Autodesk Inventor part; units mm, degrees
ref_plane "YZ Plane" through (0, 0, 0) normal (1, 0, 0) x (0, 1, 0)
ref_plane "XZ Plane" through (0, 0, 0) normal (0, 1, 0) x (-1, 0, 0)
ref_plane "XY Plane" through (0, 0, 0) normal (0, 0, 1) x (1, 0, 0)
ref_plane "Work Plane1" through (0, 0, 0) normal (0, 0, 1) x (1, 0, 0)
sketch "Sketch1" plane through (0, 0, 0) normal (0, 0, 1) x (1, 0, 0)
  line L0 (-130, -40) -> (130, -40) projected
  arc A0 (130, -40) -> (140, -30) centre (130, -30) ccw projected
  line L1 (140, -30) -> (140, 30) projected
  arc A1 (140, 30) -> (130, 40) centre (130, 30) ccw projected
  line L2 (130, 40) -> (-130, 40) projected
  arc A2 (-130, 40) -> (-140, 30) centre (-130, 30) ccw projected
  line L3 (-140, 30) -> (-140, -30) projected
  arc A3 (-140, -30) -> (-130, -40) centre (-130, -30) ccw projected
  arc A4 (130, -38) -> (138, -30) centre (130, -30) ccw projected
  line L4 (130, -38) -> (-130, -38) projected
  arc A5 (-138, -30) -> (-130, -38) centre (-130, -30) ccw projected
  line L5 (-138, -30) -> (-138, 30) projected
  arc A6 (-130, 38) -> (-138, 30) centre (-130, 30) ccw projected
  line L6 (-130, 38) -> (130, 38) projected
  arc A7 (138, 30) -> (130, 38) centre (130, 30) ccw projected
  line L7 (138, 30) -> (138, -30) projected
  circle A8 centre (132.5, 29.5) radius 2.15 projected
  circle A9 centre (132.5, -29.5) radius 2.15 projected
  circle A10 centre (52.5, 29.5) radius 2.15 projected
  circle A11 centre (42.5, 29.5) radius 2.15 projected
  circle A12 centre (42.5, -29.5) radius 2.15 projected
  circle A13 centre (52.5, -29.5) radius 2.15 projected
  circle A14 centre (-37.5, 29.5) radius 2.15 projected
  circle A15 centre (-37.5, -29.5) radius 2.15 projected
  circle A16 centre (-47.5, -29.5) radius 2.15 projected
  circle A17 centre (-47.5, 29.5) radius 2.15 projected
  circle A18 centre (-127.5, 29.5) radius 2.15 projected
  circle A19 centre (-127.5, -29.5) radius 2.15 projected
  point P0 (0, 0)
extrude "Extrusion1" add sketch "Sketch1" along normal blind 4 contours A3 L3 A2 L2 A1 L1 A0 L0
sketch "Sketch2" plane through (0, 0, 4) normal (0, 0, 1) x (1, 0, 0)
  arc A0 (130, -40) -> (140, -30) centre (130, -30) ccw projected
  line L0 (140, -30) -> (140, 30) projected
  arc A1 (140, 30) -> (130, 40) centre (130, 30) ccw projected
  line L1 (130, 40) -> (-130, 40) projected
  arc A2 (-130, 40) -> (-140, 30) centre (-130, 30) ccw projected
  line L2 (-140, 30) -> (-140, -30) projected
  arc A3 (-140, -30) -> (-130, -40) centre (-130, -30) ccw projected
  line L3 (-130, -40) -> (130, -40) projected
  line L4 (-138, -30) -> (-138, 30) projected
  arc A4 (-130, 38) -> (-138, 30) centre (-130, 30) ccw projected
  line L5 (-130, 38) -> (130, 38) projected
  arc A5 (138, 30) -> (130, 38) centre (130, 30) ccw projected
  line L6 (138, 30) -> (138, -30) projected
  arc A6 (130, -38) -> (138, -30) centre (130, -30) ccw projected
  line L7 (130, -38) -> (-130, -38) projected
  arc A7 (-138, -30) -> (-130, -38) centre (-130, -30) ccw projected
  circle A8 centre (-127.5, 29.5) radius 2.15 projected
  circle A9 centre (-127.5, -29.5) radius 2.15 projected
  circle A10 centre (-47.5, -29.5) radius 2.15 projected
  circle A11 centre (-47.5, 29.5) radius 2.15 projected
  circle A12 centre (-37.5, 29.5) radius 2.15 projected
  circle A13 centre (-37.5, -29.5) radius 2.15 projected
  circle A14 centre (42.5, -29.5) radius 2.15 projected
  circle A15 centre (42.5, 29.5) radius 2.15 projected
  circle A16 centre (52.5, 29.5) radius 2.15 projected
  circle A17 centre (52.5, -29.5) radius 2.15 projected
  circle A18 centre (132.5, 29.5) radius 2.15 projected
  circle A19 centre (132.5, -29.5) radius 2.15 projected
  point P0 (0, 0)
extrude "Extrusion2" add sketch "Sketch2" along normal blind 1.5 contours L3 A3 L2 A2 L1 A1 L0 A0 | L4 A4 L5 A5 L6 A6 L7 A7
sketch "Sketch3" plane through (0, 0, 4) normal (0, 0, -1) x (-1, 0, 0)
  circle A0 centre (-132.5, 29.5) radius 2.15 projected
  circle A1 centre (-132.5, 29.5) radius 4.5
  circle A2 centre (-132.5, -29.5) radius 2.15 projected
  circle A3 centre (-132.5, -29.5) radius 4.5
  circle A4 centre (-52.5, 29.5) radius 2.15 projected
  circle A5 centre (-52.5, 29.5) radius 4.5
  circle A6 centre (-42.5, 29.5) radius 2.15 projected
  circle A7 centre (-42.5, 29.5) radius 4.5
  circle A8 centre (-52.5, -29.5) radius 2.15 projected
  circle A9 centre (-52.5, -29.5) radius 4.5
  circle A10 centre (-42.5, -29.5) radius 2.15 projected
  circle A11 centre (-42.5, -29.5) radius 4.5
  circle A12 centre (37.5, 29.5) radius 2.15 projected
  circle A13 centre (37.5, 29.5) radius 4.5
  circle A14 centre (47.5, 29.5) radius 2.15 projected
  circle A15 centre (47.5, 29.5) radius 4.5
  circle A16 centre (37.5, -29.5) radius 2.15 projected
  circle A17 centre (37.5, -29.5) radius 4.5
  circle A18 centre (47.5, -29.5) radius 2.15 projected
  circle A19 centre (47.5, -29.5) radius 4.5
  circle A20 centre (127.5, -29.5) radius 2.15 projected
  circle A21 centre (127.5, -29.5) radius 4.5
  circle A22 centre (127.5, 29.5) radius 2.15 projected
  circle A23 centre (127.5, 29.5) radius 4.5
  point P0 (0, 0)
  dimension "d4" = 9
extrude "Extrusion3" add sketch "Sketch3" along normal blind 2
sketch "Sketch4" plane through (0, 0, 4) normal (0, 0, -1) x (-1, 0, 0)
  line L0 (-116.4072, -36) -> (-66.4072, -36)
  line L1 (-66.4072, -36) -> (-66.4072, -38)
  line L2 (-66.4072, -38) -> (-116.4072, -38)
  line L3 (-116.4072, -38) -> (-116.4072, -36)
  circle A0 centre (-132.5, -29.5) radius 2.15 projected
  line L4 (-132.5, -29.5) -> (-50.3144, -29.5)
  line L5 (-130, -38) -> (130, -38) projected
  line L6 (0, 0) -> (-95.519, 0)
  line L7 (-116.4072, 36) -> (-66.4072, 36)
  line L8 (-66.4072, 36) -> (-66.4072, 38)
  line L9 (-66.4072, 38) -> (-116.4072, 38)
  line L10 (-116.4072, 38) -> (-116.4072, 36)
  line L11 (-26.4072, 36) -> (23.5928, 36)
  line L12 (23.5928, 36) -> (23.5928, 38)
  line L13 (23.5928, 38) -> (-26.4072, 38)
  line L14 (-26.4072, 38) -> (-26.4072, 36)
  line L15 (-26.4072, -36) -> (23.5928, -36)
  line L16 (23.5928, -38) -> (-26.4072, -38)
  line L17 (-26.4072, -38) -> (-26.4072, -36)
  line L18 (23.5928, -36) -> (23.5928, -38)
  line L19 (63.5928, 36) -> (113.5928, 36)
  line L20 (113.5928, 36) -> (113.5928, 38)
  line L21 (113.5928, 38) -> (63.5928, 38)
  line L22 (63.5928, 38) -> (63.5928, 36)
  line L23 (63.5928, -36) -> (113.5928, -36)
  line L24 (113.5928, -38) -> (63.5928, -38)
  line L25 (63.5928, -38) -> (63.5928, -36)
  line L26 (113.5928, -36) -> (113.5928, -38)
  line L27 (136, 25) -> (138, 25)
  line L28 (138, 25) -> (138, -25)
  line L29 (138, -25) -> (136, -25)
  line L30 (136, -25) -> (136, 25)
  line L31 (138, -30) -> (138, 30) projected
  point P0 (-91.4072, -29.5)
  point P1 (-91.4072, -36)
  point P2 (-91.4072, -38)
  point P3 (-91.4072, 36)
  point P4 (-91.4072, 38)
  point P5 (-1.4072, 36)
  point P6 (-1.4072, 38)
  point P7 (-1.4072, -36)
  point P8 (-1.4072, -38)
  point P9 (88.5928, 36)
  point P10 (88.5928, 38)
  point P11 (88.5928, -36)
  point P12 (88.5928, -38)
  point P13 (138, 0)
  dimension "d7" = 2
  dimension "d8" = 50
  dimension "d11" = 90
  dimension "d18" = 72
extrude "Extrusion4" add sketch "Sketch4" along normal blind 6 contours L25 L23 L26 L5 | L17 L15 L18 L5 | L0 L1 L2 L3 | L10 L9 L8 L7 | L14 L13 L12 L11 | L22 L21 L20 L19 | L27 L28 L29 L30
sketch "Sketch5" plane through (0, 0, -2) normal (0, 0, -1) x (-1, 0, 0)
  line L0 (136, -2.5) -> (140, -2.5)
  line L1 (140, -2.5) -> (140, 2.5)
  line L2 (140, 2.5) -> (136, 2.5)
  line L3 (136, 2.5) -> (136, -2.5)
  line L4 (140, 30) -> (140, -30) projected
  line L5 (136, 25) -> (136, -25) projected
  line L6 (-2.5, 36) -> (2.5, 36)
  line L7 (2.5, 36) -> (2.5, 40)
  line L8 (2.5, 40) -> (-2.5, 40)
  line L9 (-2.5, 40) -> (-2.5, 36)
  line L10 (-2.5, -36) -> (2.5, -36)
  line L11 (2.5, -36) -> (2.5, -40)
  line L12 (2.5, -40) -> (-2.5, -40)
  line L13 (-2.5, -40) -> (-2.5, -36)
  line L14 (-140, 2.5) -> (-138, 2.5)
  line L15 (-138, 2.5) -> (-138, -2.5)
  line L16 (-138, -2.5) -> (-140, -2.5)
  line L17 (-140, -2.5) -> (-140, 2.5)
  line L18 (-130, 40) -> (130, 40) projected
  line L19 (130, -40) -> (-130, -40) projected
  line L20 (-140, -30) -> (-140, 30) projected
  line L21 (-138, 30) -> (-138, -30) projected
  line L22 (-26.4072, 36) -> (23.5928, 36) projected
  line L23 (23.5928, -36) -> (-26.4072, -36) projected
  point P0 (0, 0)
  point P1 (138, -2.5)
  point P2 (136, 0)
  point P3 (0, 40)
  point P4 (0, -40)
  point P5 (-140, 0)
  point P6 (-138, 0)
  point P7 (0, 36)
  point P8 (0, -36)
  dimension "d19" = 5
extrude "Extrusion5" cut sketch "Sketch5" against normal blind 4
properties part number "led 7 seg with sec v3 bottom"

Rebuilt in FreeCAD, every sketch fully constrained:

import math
import FreeCAD as App
import Part
import Sketcher
from FreeCAD import Vector
Q = App.Units.Quantity

doc = App.newDocument("Part")
body = doc.addObject("PartDesign::Body", "Body")

sketch1 = body.newObject("Sketcher::SketchObject", "Sketch")
sketch1.AttachmentSupport = (doc.getObject("XY_Plane"), [""])
sketch1.MapMode = "FlatFace"
sketch1.addGeometry(Part.ArcOfCircle(Part.Circle(Vector(-130, -30, 0), Vector(0, 0, 1), 10), math.radians(180), math.radians(270)), False)
sketch1.addGeometry(Part.LineSegment(Vector(-130, -40, 0), Vector(130, -40, 0)), False)
sketch1.addGeometry(Part.ArcOfCircle(Part.Circle(Vector(130, -30, 0), Vector(0, 0, 1), 10), math.radians(-90), math.radians(0)), False)
sketch1.addGeometry(Part.LineSegment(Vector(140, -30, 0), Vector(140, 30, 0)), False)
sketch1.addGeometry(Part.ArcOfCircle(Part.Circle(Vector(130, 30, 0), Vector(0, 0, 1), 10), math.radians(0), math.radians(90)), False)
sketch1.addGeometry(Part.LineSegment(Vector(130, 40, 0), Vector(-130, 40, 0)), False)
sketch1.addGeometry(Part.ArcOfCircle(Part.Circle(Vector(-130, 30, 0), Vector(0, 0, 1), 10), math.radians(90), math.radians(180)), False)
sketch1.addGeometry(Part.LineSegment(Vector(-140, 30, 0), Vector(-140, -30, 0)), False)
sketch1.addGeometry(Part.ArcOfCircle(Part.Circle(Vector(130, -30, 0), Vector(0, 0, 1), 8), math.radians(-90), math.radians(0)), False)
sketch1.addGeometry(Part.LineSegment(Vector(130, -38, 0), Vector(-130, -38, 0)), False)
sketch1.addGeometry(Part.ArcOfCircle(Part.Circle(Vector(-130, -30, 0), Vector(0, 0, 1), 8), math.radians(180), math.radians(270)), False)
sketch1.addGeometry(Part.LineSegment(Vector(-138, -30, 0), Vector(-138, 30, 0)), False)
sketch1.addGeometry(Part.ArcOfCircle(Part.Circle(Vector(-130, 30, 0), Vector(0, 0, 1), 8), math.radians(90), math.radians(180)), False)
sketch1.addGeometry(Part.LineSegment(Vector(-130, 38, 0), Vector(130, 38, 0)), False)
sketch1.addGeometry(Part.ArcOfCircle(Part.Circle(Vector(130, 30, 0), Vector(0, 0, 1), 8), math.radians(0), math.radians(90)), False)
sketch1.addGeometry(Part.LineSegment(Vector(138, 30, 0), Vector(138, -30, 0)), False)
sketch1.addConstraint(Sketcher.Constraint("Tangent", 0, 2, 1, 1))
sketch1.addConstraint(Sketcher.Constraint("Tangent", 1, 2, 2, 1))
sketch1.addConstraint(Sketcher.Constraint("Tangent", 2, 2, 3, 1))
sketch1.addConstraint(Sketcher.Constraint("Tangent", 3, 2, 4, 1))
sketch1.addConstraint(Sketcher.Constraint("Tangent", 4, 2, 5, 1))
sketch1.addConstraint(Sketcher.Constraint("Tangent", 5, 2, 6, 1))
sketch1.addConstraint(Sketcher.Constraint("Tangent", 6, 2, 7, 1))
sketch1.addConstraint(Sketcher.Constraint("Tangent", 7, 2, 0, 1))
sketch1.addConstraint(Sketcher.Constraint("Tangent", 8, 1, 9, 1))
sketch1.addConstraint(Sketcher.Constraint("Tangent", 9, 2, 10, 2))
sketch1.addConstraint(Sketcher.Constraint("Tangent", 10, 1, 11, 1))
sketch1.addConstraint(Sketcher.Constraint("Tangent", 11, 2, 12, 2))
sketch1.addConstraint(Sketcher.Constraint("Tangent", 12, 1, 13, 1))
sketch1.addConstraint(Sketcher.Constraint("Tangent", 13, 2, 14, 2))
sketch1.addConstraint(Sketcher.Constraint("Tangent", 14, 1, 15, 1))
sketch1.addConstraint(Sketcher.Constraint("Tangent", 15, 2, 8, 2))
sketch1.addConstraint(Sketcher.Constraint("Horizontal", 1))
sketch1.addConstraint(Sketcher.Constraint("Vertical", 3))
sketch1.addConstraint(Sketcher.Constraint("Horizontal", 5))
sketch1.addConstraint(Sketcher.Constraint("Vertical", 7))
sketch1.addConstraint(Sketcher.Constraint("Horizontal", 9))
sketch1.addConstraint(Sketcher.Constraint("Vertical", 11))
sketch1.addConstraint(Sketcher.Constraint("Horizontal", 13))
sketch1.addConstraint(Sketcher.Constraint("Vertical", 15))
sketch1.addConstraint(Sketcher.Constraint("Coincident", 8, 3, 2, 3))
sketch1.addConstraint(Sketcher.Constraint("Coincident", 10, 3, 0, 3))
sketch1.addConstraint(Sketcher.Constraint("Coincident", 12, 3, 6, 3))
sketch1.addConstraint(Sketcher.Constraint("Equal", 0, 2))
sketch1.addConstraint(Sketcher.Constraint("Equal", 2, 4))
sketch1.addConstraint(Sketcher.Constraint("Equal", 4, 6))
sketch1.addConstraint(Sketcher.Constraint("Equal", 12, 14))
sketch1.addConstraint(Sketcher.Constraint("Symmetric", 0, 3, 4, 3, -1, 1))
sketch1.addConstraint(Sketcher.Constraint("Radius", 0, Q("10 mm")))
sketch1.addConstraint(Sketcher.Constraint("Radius", 8, Q("8 mm")))
sketch1.addConstraint(Sketcher.Constraint("DistanceX", 1, 1, 1, 2, Q("260 mm")))
sketch1.addConstraint(Sketcher.Constraint("DistanceY", 3, 1, 3, 2, Q("60 mm")))
pad1 = body.newObject("PartDesign::Pad", "Pad")
pad1.Profile = sketch1
pad1.Length = 4

sketch2 = body.newObject("Sketcher::SketchObject", "Sketch001")
sketch2.AttachmentSupport = (doc.getObject("XY_Plane"), [""])
sketch2.MapMode = "FlatFace"
sketch2.AttachmentOffset = App.Placement(Vector(0, 0, 4), App.Rotation())
sketch2.addGeometry(Part.LineSegment(Vector(-130, -40, 0), Vector(130, -40, 0)), False)
sketch2.addGeometry(Part.ArcOfCircle(Part.Circle(Vector(130, -30, 0), Vector(0, 0, 1), 10), math.radians(-90), math.radians(0)), False)
sketch2.addGeometry(Part.LineSegment(Vector(140, -30, 0), Vector(140, 30, 0)), False)
sketch2.addGeometry(Part.ArcOfCircle(Part.Circle(Vector(130, 30, 0), Vector(0, 0, 1), 10), math.radians(0), math.radians(90)), False)
sketch2.addGeometry(Part.LineSegment(Vector(130, 40, 0), Vector(-130, 40, 0)), False)
sketch2.addGeometry(Part.ArcOfCircle(Part.Circle(Vector(-130, 30, 0), Vector(0, 0, 1), 10), math.radians(90), math.radians(180)), False)
sketch2.addGeometry(Part.LineSegment(Vector(-140, 30, 0), Vector(-140, -30, 0)), False)
sketch2.addGeometry(Part.ArcOfCircle(Part.Circle(Vector(-130, -30, 0), Vector(0, 0, 1), 10), math.radians(180), math.radians(270)), False)
sketch2.addGeometry(Part.Circle(Vector(52.5, -29.5, 0), Vector(0, 0, 1), 2.1), False)
sketch2.addGeometry(Part.Circle(Vector(132.5, -29.5, 0), Vector(0, 0, 1), 2.1), False)
sketch2.addGeometry(Part.Circle(Vector(-127.5, 29.5, 0), Vector(0, 0, 1), 2.1), False)
sketch2.addGeometry(Part.Circle(Vector(-47.5, 29.5, 0), Vector(0, 0, 1), 2.1), False)
sketch2.addGeometry(Part.Circle(Vector(-37.5, 29.5, 0), Vector(0, 0, 1), 2.1), False)
sketch2.addGeometry(Part.Circle(Vector(42.5, 29.5, 0), Vector(0, 0, 1), 2.1), False)
sketch2.addGeometry(Part.Circle(Vector(52.5, 29.5, 0), Vector(0, 0, 1), 2.1), False)
sketch2.addGeometry(Part.Circle(Vector(132.5, 29.5, 0), Vector(0, 0, 1), 2.1), False)
sketch2.addGeometry(Part.Circle(Vector(-127.5, -29.5, 0), Vector(0, 0, 1), 2.1), False)
sketch2.addGeometry(Part.Circle(Vector(-47.5, -29.5, 0), Vector(0, 0, 1), 2.1), False)
sketch2.addGeometry(Part.Circle(Vector(-37.5, -29.5, 0), Vector(0, 0, 1), 2.1), False)
sketch2.addGeometry(Part.Circle(Vector(42.5, -29.5, 0), Vector(0, 0, 1), 2.1), False)
sketch2.addConstraint(Sketcher.Constraint("Tangent", 0, 2, 1, 1))
sketch2.addConstraint(Sketcher.Constraint("Tangent", 1, 2, 2, 1))
sketch2.addConstraint(Sketcher.Constraint("Tangent", 2, 2, 3, 1))
sketch2.addConstraint(Sketcher.Constraint("Tangent", 3, 2, 4, 1))
sketch2.addConstraint(Sketcher.Constraint("Tangent", 4, 2, 5, 1))
sketch2.addConstraint(Sketcher.Constraint("Tangent", 5, 2, 6, 1))
sketch2.addConstraint(Sketcher.Constraint("Tangent", 6, 2, 7, 1))
sketch2.addConstraint(Sketcher.Constraint("Tangent", 7, 2, 0, 1))
sketch2.addConstraint(Sketcher.Constraint("Horizontal", 0))
sketch2.addConstraint(Sketcher.Constraint("Vertical", 2))
sketch2.addConstraint(Sketcher.Constraint("Horizontal", 4))
sketch2.addConstraint(Sketcher.Constraint("Vertical", 6))
sketch2.addConstraint(Sketcher.Constraint("Equal", 1, 3))
sketch2.addConstraint(Sketcher.Constraint("Equal", 3, 5))
sketch2.addConstraint(Sketcher.Constraint("Equal", 5, 7))
sketch2.addConstraint(Sketcher.Constraint("Equal", 8, 9))
sketch2.addConstraint(Sketcher.Constraint("Equal", 9, 10))
sketch2.addConstraint(Sketcher.Constraint("Equal", 10, 11))
sketch2.addConstraint(Sketcher.Constraint("Equal", 11, 12))
sketch2.addConstraint(Sketcher.Constraint("Equal", 12, 13))
sketch2.addConstraint(Sketcher.Constraint("Equal", 13, 14))
sketch2.addConstraint(Sketcher.Constraint("Equal", 14, 15))
sketch2.addConstraint(Sketcher.Constraint("Equal", 15, 16))
sketch2.addConstraint(Sketcher.Constraint("Equal", 16, 17))
sketch2.addConstraint(Sketcher.Constraint("Equal", 17, 18))
sketch2.addConstraint(Sketcher.Constraint("Equal", 18, 19))
sketch2.addConstraint(Sketcher.Constraint("Symmetric", 1, 3, 5, 3, -1, 1))
sketch2.addConstraint(Sketcher.Constraint("Symmetric", 8, 3, 14, 3, -1))
sketch2.addConstraint(Sketcher.Constraint("Symmetric", 9, 3, 15, 3, -1))
sketch2.addConstraint(Sketcher.Constraint("Symmetric", 10, 3, 16, 3, -1))
sketch2.addConstraint(Sketcher.Constraint("Symmetric", 11, 3, 17, 3, -1))
sketch2.addConstraint(Sketcher.Constraint("Symmetric", 12, 3, 18, 3, -1))
sketch2.addConstraint(Sketcher.Constraint("Symmetric", 13, 3, 19, 3, -1))
sketch2.addConstraint(Sketcher.Constraint("Horizontal", 8, 3, 9, 3))
sketch2.addConstraint(Sketcher.Constraint("Horizontal", 10, 3, 11, 3))
sketch2.addConstraint(Sketcher.Constraint("Horizontal", 11, 3, 12, 3))
sketch2.addConstraint(Sketcher.Constraint("Horizontal", 12, 3, 13, 3))
sketch2.addConstraint(Sketcher.Constraint("Horizontal", 13, 3, 14, 3))
sketch2.addConstraint(Sketcher.Constraint("Radius", 1, Q("10 mm")))
sketch2.addConstraint(Sketcher.Constraint("Diameter", 8, Q("4.3 mm")))
sketch2.addConstraint(Sketcher.Constraint("DistanceX", 0, 1, 0, 2, Q("260 mm")))
sketch2.addConstraint(Sketcher.Constraint("DistanceY", 2, 1, 2, 2, Q("60 mm")))
sketch2.addConstraint(Sketcher.Constraint("DistanceX", 8, 3, 9, 3, Q("80 mm")))
sketch2.addConstraint(Sketcher.Constraint("DistanceX", 10, 3, 8, 3, Q("180 mm")))
sketch2.addConstraint(Sketcher.Constraint("DistanceY", 8, 3, 10, 3, Q("59 mm")))
sketch2.addConstraint(Sketcher.Constraint("DistanceX", 10, 3, 11, 3, Q("80 mm")))
sketch2.addConstraint(Sketcher.Constraint("DistanceX", 11, 3, 12, 3, Q("10 mm")))
sketch2.addConstraint(Sketcher.Constraint("DistanceX", 13, 3, 8, 3, Q("10 mm")))
sketch2.addConstraint(Sketcher.Constraint("DistanceX", -1, 1, 8, 3, Q("52.5 mm")))
pad2 = body.newObject("PartDesign::Pad", "Pad001")
pad2.Profile = sketch2
pad2.Length = 1.5

sketch3 = body.newObject("Sketcher::SketchObject", "Sketch002")
sketch3.AttachmentSupport = (doc.getObject("XY_Plane"), [""])
sketch3.MapMode = "FlatFace"
sketch3.AttachmentOffset = App.Placement(Vector(0, 0, 4), App.Rotation())
sketch3.addGeometry(Part.Circle(Vector(132.5, 29.5, 0), Vector(0, 0, 1), 4.5), False)
sketch3.addGeometry(Part.Circle(Vector(132.5, 29.5, 0), Vector(0, 0, 1), 2.1), False)
sketch3.addGeometry(Part.Circle(Vector(132.5, -29.5, 0), Vector(0, 0, 1), 4.5), False)
sketch3.addGeometry(Part.Circle(Vector(132.5, -29.5, 0), Vector(0, 0, 1), 2.1), False)
sketch3.addGeometry(Part.Circle(Vector(52.5, 29.5, 0), Vector(0, 0, 1), 4.5), False)
sketch3.addGeometry(Part.Circle(Vector(52.5, 29.5, 0), Vector(0, 0, 1), 2.1), False)
sketch3.addGeometry(Part.Circle(Vector(42.5, 29.5, 0), Vector(0, 0, 1), 4.5), False)
sketch3.addGeometry(Part.Circle(Vector(42.5, 29.5, 0), Vector(0, 0, 1), 2.1), False)
sketch3.addGeometry(Part.Circle(Vector(52.5, -29.5, 0), Vector(0, 0, 1), 4.5), False)
sketch3.addGeometry(Part.Circle(Vector(52.5, -29.5, 0), Vector(0, 0, 1), 2.1), False)
sketch3.addGeometry(Part.Circle(Vector(42.5, -29.5, 0), Vector(0, 0, 1), 4.5), False)
sketch3.addGeometry(Part.Circle(Vector(42.5, -29.5, 0), Vector(0, 0, 1), 2.1), False)
sketch3.addGeometry(Part.Circle(Vector(-37.5, 29.5, 0), Vector(0, 0, 1), 4.5), False)
sketch3.addGeometry(Part.Circle(Vector(-37.5, 29.5, 0), Vector(0, 0, 1), 2.1), False)
sketch3.addGeometry(Part.Circle(Vector(-47.5, 29.5, 0), Vector(0, 0, 1), 4.5), False)
sketch3.addGeometry(Part.Circle(Vector(-47.5, 29.5, 0), Vector(0, 0, 1), 2.1), False)
sketch3.addGeometry(Part.Circle(Vector(-37.5, -29.5, 0), Vector(0, 0, 1), 4.5), False)
sketch3.addGeometry(Part.Circle(Vector(-37.5, -29.5, 0), Vector(0, 0, 1), 2.1), False)
sketch3.addGeometry(Part.Circle(Vector(-47.5, -29.5, 0), Vector(0, 0, 1), 4.5), False)
sketch3.addGeometry(Part.Circle(Vector(-47.5, -29.5, 0), Vector(0, 0, 1), 2.1), False)
sketch3.addGeometry(Part.Circle(Vector(-127.5, -29.5, 0), Vector(0, 0, 1), 4.5), False)
sketch3.addGeometry(Part.Circle(Vector(-127.5, -29.5, 0), Vector(0, 0, 1), 2.1), False)
sketch3.addGeometry(Part.Circle(Vector(-127.5, 29.5, 0), Vector(0, 0, 1), 4.5), False)
sketch3.addGeometry(Part.Circle(Vector(-127.5, 29.5, 0), Vector(0, 0, 1), 2.1), False)
sketch3.addConstraint(Sketcher.Constraint("Coincident", 1, 3, 0, 3))
sketch3.addConstraint(Sketcher.Constraint("Coincident", 3, 3, 2, 3))
sketch3.addConstraint(Sketcher.Constraint("Coincident", 5, 3, 4, 3))
sketch3.addConstraint(Sketcher.Constraint("Coincident", 7, 3, 6, 3))
sketch3.addConstraint(Sketcher.Constraint("Coincident", 9, 3, 8, 3))
sketch3.addConstraint(Sketcher.Constraint("Coincident", 11, 3, 10, 3))
sketch3.addConstraint(Sketcher.Constraint("Coincident", 13, 3, 12, 3))
sketch3.addConstraint(Sketcher.Constraint("Coincident", 15, 3, 14, 3))
sketch3.addConstraint(Sketcher.Constraint("Coincident", 17, 3, 16, 3))
sketch3.addConstraint(Sketcher.Constraint("Coincident", 19, 3, 18, 3))
sketch3.addConstraint(Sketcher.Constraint("Coincident", 21, 3, 20, 3))
sketch3.addConstraint(Sketcher.Constraint("Coincident", 23, 3, 22, 3))
sketch3.addConstraint(Sketcher.Constraint("Equal", 0, 2))
sketch3.addConstraint(Sketcher.Constraint("Equal", 1, 3))
sketch3.addConstraint(Sketcher.Constraint("Equal", 2, 4))
sketch3.addConstraint(Sketcher.Constraint("Equal", 3, 5))
sketch3.addConstraint(Sketcher.Constraint("Equal", 4, 6))
sketch3.addConstraint(Sketcher.Constraint("Equal", 5, 7))
sketch3.addConstraint(Sketcher.Constraint("Equal", 6, 8))
sketch3.addConstraint(Sketcher.Constraint("Equal", 7, 9))
sketch3.addConstraint(Sketcher.Constraint("Equal", 8, 10))
sketch3.addConstraint(Sketcher.Constraint("Equal", 9, 11))
sketch3.addConstraint(Sketcher.Constraint("Equal", 10, 12))
sketch3.addConstraint(Sketcher.Constraint("Equal", 11, 13))
sketch3.addConstraint(Sketcher.Constraint("Equal", 12, 14))
sketch3.addConstraint(Sketcher.Constraint("Equal", 13, 15))
sketch3.addConstraint(Sketcher.Constraint("Equal", 14, 16))
sketch3.addConstraint(Sketcher.Constraint("Equal", 15, 17))
sketch3.addConstraint(Sketcher.Constraint("Equal", 16, 18))
sketch3.addConstraint(Sketcher.Constraint("Equal", 17, 19))
sketch3.addConstraint(Sketcher.Constraint("Equal", 18, 20))
sketch3.addConstraint(Sketcher.Constraint("Equal", 19, 21))
sketch3.addConstraint(Sketcher.Constraint("Equal", 20, 22))
sketch3.addConstraint(Sketcher.Constraint("Equal", 21, 23))
sketch3.addConstraint(Sketcher.Constraint("Symmetric", 0, 3, 2, 3, -1))
sketch3.addConstraint(Sketcher.Constraint("Symmetric", 4, 3, 8, 3, -1))
sketch3.addConstraint(Sketcher.Constraint("Symmetric", 6, 3, 10, 3, -1))
sketch3.addConstraint(Sketcher.Constraint("Symmetric", 12, 3, 16, 3, -1))
sketch3.addConstraint(Sketcher.Constraint("Symmetric", 14, 3, 18, 3, -1))
sketch3.addConstraint(Sketcher.Constraint("Symmetric", 20, 3, 22, 3, -1))
sketch3.addConstraint(Sketcher.Constraint("Horizontal", 1, 3, 4, 3))
sketch3.addConstraint(Sketcher.Constraint("Horizontal", 5, 3, 6, 3))
sketch3.addConstraint(Sketcher.Constraint("Horizontal", 7, 3, 12, 3))
sketch3.addConstraint(Sketcher.Constraint("Horizontal", 13, 3, 14, 3))
sketch3.addConstraint(Sketcher.Constraint("Horizontal", 19, 3, 20, 3))
sketch3.addConstraint(Sketcher.Constraint("Diameter", 0, Q("9 mm")))
sketch3.addConstraint(Sketcher.Constraint("Diameter", 1, Q("4.3 mm")))
sketch3.addConstraint(Sketcher.Constraint("DistanceY", 2, 3, 0, 3, Q("59 mm")))
sketch3.addConstraint(Sketcher.Constraint("DistanceX", 4, 3, 0, 3, Q("80 mm")))
sketch3.addConstraint(Sketcher.Constraint("DistanceX", 6, 3, 4, 3, Q("10 mm")))
sketch3.addConstraint(Sketcher.Constraint("DistanceX", 12, 3, 6, 3, Q("80 mm")))
sketch3.addConstraint(Sketcher.Constraint("DistanceX", 14, 3, 12, 3, Q("10 mm")))
sketch3.addConstraint(Sketcher.Constraint("DistanceX", 20, 3, 18, 3, Q("80 mm")))
sketch3.addConstraint(Sketcher.Constraint("DistanceX", -1, 1, 0, 3, Q("132.5 mm")))
pad3 = body.newObject("PartDesign::Pad", "Pad002")
pad3.Profile = sketch3
pad3.Length = 2
pad3.Reversed = True

sketch4 = body.newObject("Sketcher::SketchObject", "Sketch003")
sketch4.AttachmentSupport = (doc.getObject("XY_Plane"), [""])
sketch4.MapMode = "FlatFace"
sketch4.AttachmentOffset = App.Placement(Vector(0, 0, 4), App.Rotation())
sketch4.addGeometry(Part.LineSegment(Vector(-63.6, -36, 0), Vector(-63.6, -38, 0)), False)
sketch4.addGeometry(Part.LineSegment(Vector(-63.6, -38, 0), Vector(-113.6, -38, 0)), False)
sketch4.addGeometry(Part.LineSegment(Vector(-113.6, -38, 0), Vector(-113.6, -36, 0)), False)
sketch4.addGeometry(Part.LineSegment(Vector(-113.6, -36, 0), Vector(-63.6, -36, 0)), False)
sketch4.addGeometry(Part.LineSegment(Vector(26.4, -36, 0), Vector(26.4, -38, 0)), False)
sketch4.addGeometry(Part.LineSegment(Vector(26.4, -38, 0), Vector(-23.6, -38, 0)), False)
sketch4.addGeometry(Part.LineSegment(Vector(-23.6, -38, 0), Vector(-23.6, -36, 0)), False)
sketch4.addGeometry(Part.LineSegment(Vector(-23.6, -36, 0), Vector(26.4, -36, 0)), False)
sketch4.addGeometry(Part.LineSegment(Vector(66.4, -36, 0), Vector(116.4, -36, 0)), False)
sketch4.addGeometry(Part.LineSegment(Vector(116.4, -36, 0), Vector(116.4, -38, 0)), False)
sketch4.addGeometry(Part.LineSegment(Vector(116.4, -38, 0), Vector(66.4, -38, 0)), False)
sketch4.addGeometry(Part.LineSegment(Vector(66.4, -38, 0), Vector(66.4, -36, 0)), False)
sketch4.addGeometry(Part.LineSegment(Vector(116.4, 38, 0), Vector(116.4, 36, 0)), False)
sketch4.addGeometry(Part.LineSegment(Vector(116.4, 36, 0), Vector(66.4, 36, 0)), False)
sketch4.addGeometry(Part.LineSegment(Vector(66.4, 36, 0), Vector(66.4, 38, 0)), False)
sketch4.addGeometry(Part.LineSegment(Vector(66.4, 38, 0), Vector(116.4, 38, 0)), False)
sketch4.addGeometry(Part.LineSegment(Vector(26.4, 38, 0), Vector(26.4, 36, 0)), False)
sketch4.addGeometry(Part.LineSegment(Vector(26.4, 36, 0), Vector(-23.6, 36, 0)), False)
sketch4.addGeometry(Part.LineSegment(Vector(-23.6, 36, 0), Vector(-23.6, 38, 0)), False)
sketch4.addGeometry(Part.LineSegment(Vector(-23.6, 38, 0), Vector(26.4, 38, 0)), False)
sketch4.addGeometry(Part.LineSegment(Vector(-63.6, 38, 0), Vector(-63.6, 36, 0)), False)
sketch4.addGeometry(Part.LineSegment(Vector(-63.6, 36, 0), Vector(-113.6, 36, 0)), False)
sketch4.addGeometry(Part.LineSegment(Vector(-113.6, 36, 0), Vector(-113.6, 38, 0)), False)
sketch4.addGeometry(Part.LineSegment(Vector(-113.6, 38, 0), Vector(-63.6, 38, 0)), False)
sketch4.addGeometry(Part.LineSegment(Vector(-138, 25, 0), Vector(-136, 25, 0)), False)
sketch4.addGeometry(Part.LineSegment(Vector(-136, 25, 0), Vector(-136, -25, 0)), False)
sketch4.addGeometry(Part.LineSegment(Vector(-136, -25, 0), Vector(-138, -25, 0)), False)
sketch4.addGeometry(Part.LineSegment(Vector(-138, -25, 0), Vector(-138, 25, 0)), False)
sketch4.addConstraint(Sketcher.Constraint("Coincident", 0, 2, 1, 1))
sketch4.addConstraint(Sketcher.Constraint("Coincident", 1, 2, 2, 1))
sketch4.addConstraint(Sketcher.Constraint("Coincident", 2, 2, 3, 1))
sketch4.addConstraint(Sketcher.Constraint("Coincident", 3, 2, 0, 1))
sketch4.addConstraint(Sketcher.Constraint("Coincident", 4, 2, 5, 1))
sketch4.addConstraint(Sketcher.Constraint("Coincident", 5, 2, 6, 1))
sketch4.addConstraint(Sketcher.Constraint("Coincident", 6, 2, 7, 1))
sketch4.addConstraint(Sketcher.Constraint("Coincident", 7, 2, 4, 1))
sketch4.addConstraint(Sketcher.Constraint("Coincident", 8, 2, 9, 1))
sketch4.addConstraint(Sketcher.Constraint("Coincident", 9, 2, 10, 1))
sketch4.addConstraint(Sketcher.Constraint("Coincident", 10, 2, 11, 1))
sketch4.addConstraint(Sketcher.Constraint("Coincident", 11, 2, 8, 1))
sketch4.addConstraint(Sketcher.Constraint("Coincident", 12, 2, 13, 1))
sketch4.addConstraint(Sketcher.Constraint("Coincident", 13, 2, 14, 1))
sketch4.addConstraint(Sketcher.Constraint("Coincident", 14, 2, 15, 1))
sketch4.addConstraint(Sketcher.Constraint("Coincident", 15, 2, 12, 1))
sketch4.addConstraint(Sketcher.Constraint("Coincident", 16, 2, 17, 1))
sketch4.addConstraint(Sketcher.Constraint("Coincident", 17, 2, 18, 1))
sketch4.addConstraint(Sketcher.Constraint("Coincident", 18, 2, 19, 1))
sketch4.addConstraint(Sketcher.Constraint("Coincident", 19, 2, 16, 1))
sketch4.addConstraint(Sketcher.Constraint("Coincident", 20, 2, 21, 1))
sketch4.addConstraint(Sketcher.Constraint("Coincident", 21, 2, 22, 1))
sketch4.addConstraint(Sketcher.Constraint("Coincident", 22, 2, 23, 1))
sketch4.addConstraint(Sketcher.Constraint("Coincident", 23, 2, 20, 1))
sketch4.addConstraint(Sketcher.Constraint("Coincident", 24, 2, 25, 1))
sketch4.addConstraint(Sketcher.Constraint("Coincident", 25, 2, 26, 1))
sketch4.addConstraint(Sketcher.Constraint("Coincident", 26, 2, 27, 1))
sketch4.addConstraint(Sketcher.Constraint("Coincident", 27, 2, 24, 1))
sketch4.addConstraint(Sketcher.Constraint("Vertical", 0))
sketch4.addConstraint(Sketcher.Constraint("Horizontal", 1))
sketch4.addConstraint(Sketcher.Constraint("Vertical", 2))
sketch4.addConstraint(Sketcher.Constraint("Horizontal", 3))
sketch4.addConstraint(Sketcher.Constraint("Vertical", 4))
sketch4.addConstraint(Sketcher.Constraint("Horizontal", 5))
sketch4.addConstraint(Sketcher.Constraint("Vertical", 6))
sketch4.addConstraint(Sketcher.Constraint("Horizontal", 7))
sketch4.addConstraint(Sketcher.Constraint("Horizontal", 8))
sketch4.addConstraint(Sketcher.Constraint("Vertical", 9))
sketch4.addConstraint(Sketcher.Constraint("Horizontal", 10))
sketch4.addConstraint(Sketcher.Constraint("Vertical", 11))
sketch4.addConstraint(Sketcher.Constraint("Vertical", 12))
sketch4.addConstraint(Sketcher.Constraint("Horizontal", 13))
sketch4.addConstraint(Sketcher.Constraint("Vertical", 14))
sketch4.addConstraint(Sketcher.Constraint("Horizontal", 15))
sketch4.addConstraint(Sketcher.Constraint("Vertical", 16))
sketch4.addConstraint(Sketcher.Constraint("Horizontal", 17))
sketch4.addConstraint(Sketcher.Constraint("Vertical", 18))
sketch4.addConstraint(Sketcher.Constraint("Horizontal", 19))
sketch4.addConstraint(Sketcher.Constraint("Vertical", 20))
sketch4.addConstraint(Sketcher.Constraint("Horizontal", 21))
sketch4.addConstraint(Sketcher.Constraint("Vertical", 22))
sketch4.addConstraint(Sketcher.Constraint("Horizontal", 23))
sketch4.addConstraint(Sketcher.Constraint("Horizontal", 24))
sketch4.addConstraint(Sketcher.Constraint("Vertical", 25))
sketch4.addConstraint(Sketcher.Constraint("Horizontal", 26))
sketch4.addConstraint(Sketcher.Constraint("Vertical", 27))
sketch4.addConstraint(Sketcher.Constraint("Symmetric", 8, 2, 12, 2, -1))
sketch4.addConstraint(Sketcher.Constraint("Symmetric", 10, 2, 14, 2, -1))
sketch4.addConstraint(Sketcher.Constraint("Symmetric", 7, 2, 16, 2, -1))
sketch4.addConstraint(Sketcher.Constraint("Symmetric", 5, 2, 18, 2, -1))
sketch4.addConstraint(Sketcher.Constraint("Symmetric", 3, 2, 20, 2, -1))
sketch4.addConstraint(Sketcher.Constraint("Symmetric", 1, 2, 22, 2, -1))
sketch4.addConstraint(Sketcher.Constraint("Horizontal", 1, 2, 4, 2))
sketch4.addConstraint(Sketcher.Constraint("Horizontal", 3, 2, 6, 2))
sketch4.addConstraint(Sketcher.Constraint("Horizontal", 7, 2, 8, 2))
sketch4.addConstraint(Sketcher.Constraint("Horizontal", 5, 2, 9, 2))
sketch4.addConstraint(Sketcher.Constraint("Equal", 3, 5))
sketch4.addConstraint(Sketcher.Constraint("Equal", 7, 8))
sketch4.addConstraint(Sketcher.Constraint("Equal", 26, 0))
sketch4.addConstraint(Sketcher.Constraint("Equal", 23, 25))
sketch4.addConstraint(Sketcher.Constraint("DistanceX", 1, 2, 1, 1, Q("50 mm")))
sketch4.addConstraint(Sketcher.Constraint("DistanceX", 24, 1, 24, 2, Q("2 mm")))
sketch4.addConstraint(Sketcher.Constraint("DistanceX", 0, 2, 4, 2, Q("90 mm")))
sketch4.addConstraint(Sketcher.Constraint("DistanceX", 7, 2, 8, 2, Q("90 mm")))
sketch4.addConstraint(Sketcher.Constraint("DistanceY", 8, 2, 12, 2, Q("72 mm")))
sketch4.addConstraint(Sketcher.Constraint("DistanceX", 24, 2, -1, 1, Q("136 mm")))
sketch4.addConstraint(Sketcher.Constraint("DistanceY", -1, 1, 24, 2, Q("25 mm")))
sketch4.addConstraint(Sketcher.Constraint("DistanceX", 0, 2, -1, 1, Q("63.5928 mm")))
pad4 = body.newObject("PartDesign::Pad", "Pad003")
pad4.Profile = sketch4
pad4.Length = 6
pad4.Reversed = True

sketch5 = body.newObject("Sketcher::SketchObject", "Sketch004")
sketch5.AttachmentSupport = (doc.getObject("XY_Plane"), [""])
sketch5.MapMode = "FlatFace"
sketch5.AttachmentOffset = App.Placement(Vector(0, 0, -2), App.Rotation())
sketch5.addGeometry(Part.LineSegment(Vector(-136, 2.5, 0), Vector(-136, -2.5, 0)), False)
sketch5.addGeometry(Part.LineSegment(Vector(-136, -2.5, 0), Vector(-140, -2.5, 0)), False)
sketch5.addGeometry(Part.LineSegment(Vector(-140, -2.5, 0), Vector(-140, 2.5, 0)), False)
sketch5.addGeometry(Part.LineSegment(Vector(-140, 2.5, 0), Vector(-136, 2.5, 0)), False)
sketch5.addGeometry(Part.LineSegment(Vector(2.5, 40, 0), Vector(2.5, 36, 0)), False)
sketch5.addGeometry(Part.LineSegment(Vector(2.5, 36, 0), Vector(-2.5, 36, 0)), False)
sketch5.addGeometry(Part.LineSegment(Vector(-2.5, 36, 0), Vector(-2.5, 40, 0)), False)
sketch5.addGeometry(Part.LineSegment(Vector(-2.5, 40, 0), Vector(2.5, 40, 0)), False)
sketch5.addGeometry(Part.LineSegment(Vector(-2.5, -36, 0), Vector(2.5, -36, 0)), False)
sketch5.addGeometry(Part.LineSegment(Vector(2.5, -36, 0), Vector(2.5, -40, 0)), False)
sketch5.addGeometry(Part.LineSegment(Vector(2.5, -40, 0), Vector(-2.5, -40, 0)), False)
sketch5.addGeometry(Part.LineSegment(Vector(-2.5, -40, 0), Vector(-2.5, -36, 0)), False)
sketch5.addGeometry(Part.LineSegment(Vector(138, 2.5, 0), Vector(140, 2.5, 0)), False)
sketch5.addGeometry(Part.LineSegment(Vector(140, 2.5, 0), Vector(140, -2.5, 0)), False)
sketch5.addGeometry(Part.LineSegment(Vector(140, -2.5, 0), Vector(138, -2.5, 0)), False)
sketch5.addGeometry(Part.LineSegment(Vector(138, -2.5, 0), Vector(138, 2.5, 0)), False)
sketch5.addConstraint(Sketcher.Constraint("Coincident", 0, 2, 1, 1))
sketch5.addConstraint(Sketcher.Constraint("Coincident", 1, 2, 2, 1))
sketch5.addConstraint(Sketcher.Constraint("Coincident", 2, 2, 3, 1))
sketch5.addConstraint(Sketcher.Constraint("Coincident", 3, 2, 0, 1))
sketch5.addConstraint(Sketcher.Constraint("Coincident", 4, 2, 5, 1))
sketch5.addConstraint(Sketcher.Constraint("Coincident", 5, 2, 6, 1))
sketch5.addConstraint(Sketcher.Constraint("Coincident", 6, 2, 7, 1))
sketch5.addConstraint(Sketcher.Constraint("Coincident", 7, 2, 4, 1))
sketch5.addConstraint(Sketcher.Constraint("Coincident", 8, 2, 9, 1))
sketch5.addConstraint(Sketcher.Constraint("Coincident", 9, 2, 10, 1))
sketch5.addConstraint(Sketcher.Constraint("Coincident", 10, 2, 11, 1))
sketch5.addConstraint(Sketcher.Constraint("Coincident", 11, 2, 8, 1))
sketch5.addConstraint(Sketcher.Constraint("Coincident", 12, 2, 13, 1))
sketch5.addConstraint(Sketcher.Constraint("Coincident", 13, 2, 14, 1))
sketch5.addConstraint(Sketcher.Constraint("Coincident", 14, 2, 15, 1))
sketch5.addConstraint(Sketcher.Constraint("Coincident", 15, 2, 12, 1))
sketch5.addConstraint(Sketcher.Constraint("Vertical", 0))
sketch5.addConstraint(Sketcher.Constraint("Horizontal", 1))
sketch5.addConstraint(Sketcher.Constraint("Vertical", 2))
sketch5.addConstraint(Sketcher.Constraint("Horizontal", 3))
sketch5.addConstraint(Sketcher.Constraint("Vertical", 4))
sketch5.addConstraint(Sketcher.Constraint("Horizontal", 5))
sketch5.addConstraint(Sketcher.Constraint("Vertical", 6))
sketch5.addConstraint(Sketcher.Constraint("Horizontal", 7))
sketch5.addConstraint(Sketcher.Constraint("Horizontal", 8))
sketch5.addConstraint(Sketcher.Constraint("Vertical", 9))
sketch5.addConstraint(Sketcher.Constraint("Horizontal", 10))
sketch5.addConstraint(Sketcher.Constraint("Vertical", 11))
sketch5.addConstraint(Sketcher.Constraint("Horizontal", 12))
sketch5.addConstraint(Sketcher.Constraint("Vertical", 13))
sketch5.addConstraint(Sketcher.Constraint("Horizontal", 14))
sketch5.addConstraint(Sketcher.Constraint("Vertical", 15))
sketch5.addConstraint(Sketcher.Constraint("Symmetric", 5, 2, 8, 2, -1, 1))
sketch5.addConstraint(Sketcher.Constraint("Symmetric", 7, 2, 10, 2, -1, 1))
sketch5.addConstraint(Sketcher.Constraint("Symmetric", 1, 2, 12, 2, -1, 1))
sketch5.addConstraint(Sketcher.Constraint("Horizontal", 3, 2, 12, 2))
sketch5.addConstraint(Sketcher.Constraint("Horizontal", 1, 2, 13, 2))
sketch5.addConstraint(Sketcher.Constraint("Vertical", 7, 2, 8, 2))
sketch5.addConstraint(Sketcher.Constraint("Equal", 10, 0))
sketch5.addConstraint(Sketcher.Constraint("Equal", 3, 4))
sketch5.addConstraint(Sketcher.Constraint("DistanceX", 5, 2, 5, 1, Q("5 mm")))
sketch5.addConstraint(Sketcher.Constraint("DistanceX", 1, 2, 1, 1, Q("4 mm")))
sketch5.addConstraint(Sketcher.Constraint("DistanceX", 12, 1, 12, 2, Q("2 mm")))
sketch5.addConstraint(Sketcher.Constraint("DistanceX", 0, 2, -1, 1, Q("136 mm")))
sketch5.addConstraint(Sketcher.Constraint("DistanceY", -1, 1, 4, 2, Q("36 mm")))
pocket1 = body.newObject("PartDesign::Pocket", "Pocket")
pocket1.Profile = sketch5
pocket1.Length = 4
pocket1.Reversed = True

doc.recompute()
